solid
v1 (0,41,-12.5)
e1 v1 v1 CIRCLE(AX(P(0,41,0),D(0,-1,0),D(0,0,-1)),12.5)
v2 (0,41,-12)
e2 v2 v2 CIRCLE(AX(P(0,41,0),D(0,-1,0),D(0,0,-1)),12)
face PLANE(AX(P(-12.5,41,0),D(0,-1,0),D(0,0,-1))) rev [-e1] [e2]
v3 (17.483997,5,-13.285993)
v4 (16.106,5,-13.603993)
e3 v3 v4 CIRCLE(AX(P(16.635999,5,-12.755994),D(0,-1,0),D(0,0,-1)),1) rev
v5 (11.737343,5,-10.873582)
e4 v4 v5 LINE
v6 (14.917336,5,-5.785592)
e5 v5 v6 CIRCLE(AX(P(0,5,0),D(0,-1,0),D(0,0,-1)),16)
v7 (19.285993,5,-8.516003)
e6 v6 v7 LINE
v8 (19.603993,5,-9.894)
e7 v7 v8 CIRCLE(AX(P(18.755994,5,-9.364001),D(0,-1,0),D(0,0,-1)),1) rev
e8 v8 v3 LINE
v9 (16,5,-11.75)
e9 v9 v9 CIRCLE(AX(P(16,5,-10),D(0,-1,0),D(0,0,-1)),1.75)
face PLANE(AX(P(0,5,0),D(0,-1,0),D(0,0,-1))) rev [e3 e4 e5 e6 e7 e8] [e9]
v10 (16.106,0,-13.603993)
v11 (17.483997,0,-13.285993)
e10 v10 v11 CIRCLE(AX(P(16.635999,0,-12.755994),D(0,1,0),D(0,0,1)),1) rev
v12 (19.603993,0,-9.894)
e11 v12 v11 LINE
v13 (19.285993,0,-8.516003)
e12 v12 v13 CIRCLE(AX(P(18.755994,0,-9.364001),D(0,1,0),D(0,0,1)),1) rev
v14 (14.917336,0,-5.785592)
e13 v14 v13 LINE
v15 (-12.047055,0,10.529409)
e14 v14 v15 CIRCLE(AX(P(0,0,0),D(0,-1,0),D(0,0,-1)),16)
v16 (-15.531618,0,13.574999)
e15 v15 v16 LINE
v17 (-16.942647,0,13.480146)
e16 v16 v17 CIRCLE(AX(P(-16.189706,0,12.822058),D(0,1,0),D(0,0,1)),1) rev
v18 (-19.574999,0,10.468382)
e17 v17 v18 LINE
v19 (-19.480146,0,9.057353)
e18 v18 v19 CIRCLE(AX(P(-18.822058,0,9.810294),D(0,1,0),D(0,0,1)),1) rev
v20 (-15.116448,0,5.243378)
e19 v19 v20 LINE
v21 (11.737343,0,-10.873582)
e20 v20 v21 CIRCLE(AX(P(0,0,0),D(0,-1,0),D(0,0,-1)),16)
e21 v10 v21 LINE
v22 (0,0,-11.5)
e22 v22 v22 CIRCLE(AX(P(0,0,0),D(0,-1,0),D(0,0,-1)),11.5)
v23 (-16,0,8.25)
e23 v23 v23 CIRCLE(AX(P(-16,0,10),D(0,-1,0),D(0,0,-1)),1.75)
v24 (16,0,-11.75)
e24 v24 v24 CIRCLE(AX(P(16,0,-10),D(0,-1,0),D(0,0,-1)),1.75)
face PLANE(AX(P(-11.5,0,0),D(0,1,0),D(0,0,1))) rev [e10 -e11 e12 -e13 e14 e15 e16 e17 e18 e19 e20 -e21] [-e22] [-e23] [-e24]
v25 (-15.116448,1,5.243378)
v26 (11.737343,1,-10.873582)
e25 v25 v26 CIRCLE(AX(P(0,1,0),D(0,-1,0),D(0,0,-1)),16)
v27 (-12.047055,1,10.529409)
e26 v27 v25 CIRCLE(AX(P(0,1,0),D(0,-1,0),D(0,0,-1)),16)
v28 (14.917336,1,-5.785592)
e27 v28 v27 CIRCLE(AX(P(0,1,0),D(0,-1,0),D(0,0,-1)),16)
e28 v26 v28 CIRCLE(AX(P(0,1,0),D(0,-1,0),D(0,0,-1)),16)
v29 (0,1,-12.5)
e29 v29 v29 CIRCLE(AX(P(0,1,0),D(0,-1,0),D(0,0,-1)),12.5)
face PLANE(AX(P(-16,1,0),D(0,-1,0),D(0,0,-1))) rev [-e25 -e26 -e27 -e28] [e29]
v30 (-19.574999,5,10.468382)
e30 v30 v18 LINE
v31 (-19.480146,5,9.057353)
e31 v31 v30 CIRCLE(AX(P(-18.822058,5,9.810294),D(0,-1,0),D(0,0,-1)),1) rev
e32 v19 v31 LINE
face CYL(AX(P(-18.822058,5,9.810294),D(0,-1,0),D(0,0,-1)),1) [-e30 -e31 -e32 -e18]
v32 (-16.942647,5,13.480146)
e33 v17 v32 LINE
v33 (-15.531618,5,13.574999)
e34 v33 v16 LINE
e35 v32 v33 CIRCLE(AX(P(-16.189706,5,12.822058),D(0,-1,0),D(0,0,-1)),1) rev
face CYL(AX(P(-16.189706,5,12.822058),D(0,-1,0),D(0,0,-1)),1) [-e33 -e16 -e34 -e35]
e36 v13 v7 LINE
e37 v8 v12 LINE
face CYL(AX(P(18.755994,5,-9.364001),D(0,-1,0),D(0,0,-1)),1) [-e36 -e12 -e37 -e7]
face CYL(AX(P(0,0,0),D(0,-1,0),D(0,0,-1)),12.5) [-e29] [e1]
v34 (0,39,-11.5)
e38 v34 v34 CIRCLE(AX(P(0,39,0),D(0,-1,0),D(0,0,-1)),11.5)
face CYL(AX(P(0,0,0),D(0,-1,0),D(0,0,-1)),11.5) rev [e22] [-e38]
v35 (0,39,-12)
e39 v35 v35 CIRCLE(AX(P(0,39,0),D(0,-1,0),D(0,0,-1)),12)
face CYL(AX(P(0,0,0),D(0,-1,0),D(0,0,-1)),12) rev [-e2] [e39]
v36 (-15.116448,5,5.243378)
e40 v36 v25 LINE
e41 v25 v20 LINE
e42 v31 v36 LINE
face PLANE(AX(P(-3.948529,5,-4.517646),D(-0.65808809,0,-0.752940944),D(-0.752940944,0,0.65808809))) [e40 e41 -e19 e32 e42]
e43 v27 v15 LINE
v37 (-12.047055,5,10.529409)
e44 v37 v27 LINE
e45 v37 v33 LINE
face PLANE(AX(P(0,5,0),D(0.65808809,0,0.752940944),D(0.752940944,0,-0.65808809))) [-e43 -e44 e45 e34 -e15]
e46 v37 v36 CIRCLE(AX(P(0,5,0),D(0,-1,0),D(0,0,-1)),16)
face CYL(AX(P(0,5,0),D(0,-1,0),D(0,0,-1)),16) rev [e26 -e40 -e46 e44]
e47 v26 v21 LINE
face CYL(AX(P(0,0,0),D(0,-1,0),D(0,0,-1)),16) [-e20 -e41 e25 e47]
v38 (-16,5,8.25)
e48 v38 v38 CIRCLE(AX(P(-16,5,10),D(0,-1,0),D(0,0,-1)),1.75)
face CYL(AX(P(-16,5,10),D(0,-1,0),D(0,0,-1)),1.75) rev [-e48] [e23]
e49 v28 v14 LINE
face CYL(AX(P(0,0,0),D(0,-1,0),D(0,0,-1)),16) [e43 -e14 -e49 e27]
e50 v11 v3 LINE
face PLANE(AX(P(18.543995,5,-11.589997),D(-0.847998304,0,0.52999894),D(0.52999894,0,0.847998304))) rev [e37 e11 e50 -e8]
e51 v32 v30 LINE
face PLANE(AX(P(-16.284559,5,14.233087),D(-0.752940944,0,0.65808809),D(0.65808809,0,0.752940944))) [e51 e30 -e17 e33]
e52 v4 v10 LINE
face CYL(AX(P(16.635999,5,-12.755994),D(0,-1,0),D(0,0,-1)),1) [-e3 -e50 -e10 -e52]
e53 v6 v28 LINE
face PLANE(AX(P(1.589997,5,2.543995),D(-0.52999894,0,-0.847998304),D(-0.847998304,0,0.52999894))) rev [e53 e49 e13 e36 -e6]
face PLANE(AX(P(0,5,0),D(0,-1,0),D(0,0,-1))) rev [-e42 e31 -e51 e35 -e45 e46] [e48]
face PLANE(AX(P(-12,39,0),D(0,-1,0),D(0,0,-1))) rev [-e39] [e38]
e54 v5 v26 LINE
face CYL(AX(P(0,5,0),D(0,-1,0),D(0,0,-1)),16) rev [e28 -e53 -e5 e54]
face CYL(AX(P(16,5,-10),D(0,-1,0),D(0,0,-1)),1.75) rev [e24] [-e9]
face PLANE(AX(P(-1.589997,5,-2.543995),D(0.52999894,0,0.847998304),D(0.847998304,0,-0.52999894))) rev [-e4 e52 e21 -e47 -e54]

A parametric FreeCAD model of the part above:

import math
import FreeCAD as App
import Part
import Sketcher
from FreeCAD import Vector
Q = App.Units.Quantity


def edges_at(feature, points):
    """Names of the edges that pass closest to the given points."""
    edges = feature.Shape.Edges
    near = lambda p: min(range(len(edges)), key=lambda i: edges[i].distToShape(Part.Vertex(*p))[0])
    return sorted({f"Edge{near(p) + 1}" for p in points})


def add_polygon(sketch, points):
    """Adds a closed chain of lines whose ends are joined by coincident constraints."""
    first, n = sketch.GeometryCount, len(points)
    for a, b in zip(points, points[1:] + points[:1]):
        sketch.addGeometry(Part.LineSegment(App.Vector(*a, 0), App.Vector(*b, 0)), False)
    for i in range(n):
        sketch.addConstraint(Sketcher.Constraint("Coincident", first + i, 2, first + (i + 1) % n, 1))

doc = App.newDocument("Part")
body = doc.addObject("PartDesign::Body", "Body")

sketch1 = body.newObject("Sketcher::SketchObject", "Sketch")
sketch1.AttachmentSupport = (doc.getObject("XY_Plane"), [""])
sketch1.MapMode = "FlatFace"
add_polygon(sketch1, [(-16, 0), (-11.5, 0), (-11.5, 39), (-12, 39), (-12, 41), (-12.5, 41), (-12.5, 1), (-16, 1)])
sketch1.addConstraint([
    Sketcher.Constraint("Horizontal", 0),
    Sketcher.Constraint("Vertical", 1),
    Sketcher.Constraint("Horizontal", 2),
    Sketcher.Constraint("Vertical", 3),
    Sketcher.Constraint("Horizontal", 4),
    Sketcher.Constraint("Vertical", 5),
    Sketcher.Constraint("Horizontal", 6),
    Sketcher.Constraint("Vertical", 7),
    Sketcher.Constraint("PointOnObject", 0, 2, -1),
    Sketcher.Constraint("Equal", 2, 4),
    Sketcher.Constraint("DistanceY", 1, 1, 1, 2, Q("39 mm")),
    Sketcher.Constraint("DistanceY", 3, 1, 3, 2, Q("2 mm")),
    Sketcher.Constraint("DistanceY", 5, 2, 5, 1, Q("40 mm")),
    Sketcher.Constraint("DistanceX", 0, 1, 0, 2, Q("4.5 mm")),
    Sketcher.Constraint("DistanceX", 2, 2, 2, 1, Q("0.5 mm")),
    Sketcher.Constraint("DistanceX", 2, 2, -1, 1, Q("12 mm")),
])
revolution = body.newObject("PartDesign::Revolution", "Revolution")
revolution.Profile = sketch1
revolution.ReferenceAxis = (sketch1, ["V_Axis"])
revolution.Angle = 360

sketch2 = body.newObject("Sketcher::SketchObject", "Sketch001")
sketch2.AttachmentSupport = (doc.getObject("XZ_Plane"), [""])
sketch2.MapMode = "FlatFace"
sketch2.AttachmentOffset = App.Placement(Vector(0, 0, -5), App.Rotation())
sketch2.addGeometry([
    Part.LineSegment(Vector(20.1, -9, 0), Vector(14.9, -5.8, 0)),
    Part.ArcOfCircle(Part.Circle(Vector(0, 0, 0), Vector(0, 0, 1), 16), math.radians(-43), math.radians(-21)),
    Part.LineSegment(Vector(11.7, -10.9, 0), Vector(17, -14.1, 0)),
    Part.LineSegment(Vector(17, -14.1, 0), Vector(20.1, -9, 0)),
    Part.Circle(Vector(16, -10, 0), Vector(0, 0, 1), 1.8),
    Part.LineSegment(Vector(-20.2, 9.7, 0), Vector(-15.1, 5.2, 0)),
    Part.ArcOfCircle(Part.Circle(Vector(0, 0, 0), Vector(0, 0, 1), 16), math.radians(139), math.radians(161)),
    Part.LineSegment(Vector(-12, 10.5, 0), Vector(-16.3, 14.2, 0)),
    Part.LineSegment(Vector(-16.3, 14.2, 0), Vector(-20.2, 9.7, 0)),
    Part.Circle(Vector(-16, 10, 0), Vector(0, 0, 1), 1.8),
], False)
sketch2.addConstraint([
    Sketcher.Constraint("Coincident", 0, 2, 1, 2),
    Sketcher.Constraint("Coincident", 1, 1, 2, 1),
    Sketcher.Constraint("Coincident", 2, 2, 3, 1),
    Sketcher.Constraint("Coincident", 3, 2, 0, 1),
    Sketcher.Constraint("Coincident", 5, 2, 6, 2),
    Sketcher.Constraint("Coincident", 6, 1, 7, 1),
    Sketcher.Constraint("Coincident", 7, 2, 8, 1),
    Sketcher.Constraint("Coincident", 8, 2, 5, 1),
    Sketcher.Constraint("Coincident", 1, 3, -1, 1),
    Sketcher.Constraint("Coincident", 6, 3, -1, 1),
    Sketcher.Constraint("Equal", 1, 6),
    Sketcher.Constraint("Equal", 4, 9),
    Sketcher.Constraint("Symmetric", 4, 3, 9, 3, -1, 1),
    Sketcher.Constraint("Parallel", 0, 2),
    Sketcher.Constraint("Perpendicular", 2, 3),
    Sketcher.Constraint("Parallel", 5, 7),
    Sketcher.Constraint("Perpendicular", 7, 8),
    Sketcher.Constraint("Equal", 0, 2),
    Sketcher.Constraint("Equal", 3, 8),
    Sketcher.Constraint("Radius", 1, Q("16 mm")),
    Sketcher.Constraint("Diameter", 4, Q("3.5 mm")),
    Sketcher.Constraint("Distance", 3, Q("6 mm")),
    Sketcher.Constraint("DistanceX", -1, 1, 4, 3, Q("16 mm")),
    Sketcher.Constraint("DistanceY", 4, 3, -1, 1, Q("10 mm")),
    Sketcher.Constraint("DistanceX", -1, 1, 2, 2, Q("16.953998 mm")),
    Sketcher.Constraint("DistanceY", 3, 2, -1, 1, Q("9.046002 mm")),
    Sketcher.Constraint("DistanceY", 0, 2, 6, 1, Q("16.315002 mm")),
    Sketcher.Constraint("Distance", 5, Q("6.795539 mm")),
    Sketcher.Constraint("DistanceY", -1, 1, 5, 2, Q("5.243378 mm")),
])
pad1 = body.newObject("PartDesign::Pad", "Pad")
pad1.Profile = sketch2
pad1.Length = 5
doc.recompute()

fillet = body.newObject("PartDesign::Fillet", "Fillet")
fillet.Base = (pad1, edges_at(pad1, [
    (-20.233, 2.5, 9.715),
    (-16.285, 2.5, 14.233),
    (16.954, 2.5, -14.134),
    (20.134, 2.5, -9.046),
]))
fillet.Radius = 1

doc.recompute()
